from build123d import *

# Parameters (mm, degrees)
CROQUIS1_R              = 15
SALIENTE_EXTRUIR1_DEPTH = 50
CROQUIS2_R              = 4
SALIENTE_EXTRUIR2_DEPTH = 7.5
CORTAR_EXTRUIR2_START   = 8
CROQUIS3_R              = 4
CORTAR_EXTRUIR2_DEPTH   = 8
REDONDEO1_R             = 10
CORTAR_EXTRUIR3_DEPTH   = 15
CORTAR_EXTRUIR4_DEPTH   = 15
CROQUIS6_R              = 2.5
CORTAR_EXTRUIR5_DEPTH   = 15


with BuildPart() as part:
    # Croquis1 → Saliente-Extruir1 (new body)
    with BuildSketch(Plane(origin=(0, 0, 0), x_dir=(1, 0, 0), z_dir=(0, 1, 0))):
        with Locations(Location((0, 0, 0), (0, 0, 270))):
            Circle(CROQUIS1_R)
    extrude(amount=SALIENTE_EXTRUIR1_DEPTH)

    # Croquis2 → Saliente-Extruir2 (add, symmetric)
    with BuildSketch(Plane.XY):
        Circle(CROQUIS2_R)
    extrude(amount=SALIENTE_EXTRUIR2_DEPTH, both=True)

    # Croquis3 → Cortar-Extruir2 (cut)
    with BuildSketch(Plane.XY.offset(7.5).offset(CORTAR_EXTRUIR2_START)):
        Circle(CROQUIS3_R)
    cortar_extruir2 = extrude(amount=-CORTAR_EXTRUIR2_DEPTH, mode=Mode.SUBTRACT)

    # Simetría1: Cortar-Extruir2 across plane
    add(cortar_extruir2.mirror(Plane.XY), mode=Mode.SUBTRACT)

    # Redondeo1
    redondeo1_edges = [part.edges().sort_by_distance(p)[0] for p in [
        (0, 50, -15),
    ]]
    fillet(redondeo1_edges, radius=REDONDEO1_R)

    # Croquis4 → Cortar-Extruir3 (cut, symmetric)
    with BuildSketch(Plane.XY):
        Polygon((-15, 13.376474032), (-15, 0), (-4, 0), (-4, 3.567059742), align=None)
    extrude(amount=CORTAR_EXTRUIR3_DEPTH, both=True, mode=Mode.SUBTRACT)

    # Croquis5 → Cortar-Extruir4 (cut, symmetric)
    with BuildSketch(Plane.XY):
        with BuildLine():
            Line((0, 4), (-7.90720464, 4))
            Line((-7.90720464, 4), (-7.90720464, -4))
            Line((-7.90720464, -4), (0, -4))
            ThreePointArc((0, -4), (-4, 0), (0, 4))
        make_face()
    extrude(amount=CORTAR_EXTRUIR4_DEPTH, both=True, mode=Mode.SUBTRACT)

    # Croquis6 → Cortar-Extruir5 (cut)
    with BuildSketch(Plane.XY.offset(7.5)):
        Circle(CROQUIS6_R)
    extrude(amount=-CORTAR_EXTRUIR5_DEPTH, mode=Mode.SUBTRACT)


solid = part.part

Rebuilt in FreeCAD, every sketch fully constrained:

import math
import FreeCAD as App
import Part
import Sketcher
from FreeCAD import Vector


def edges_at(feature, points):
    """Names of the edges that pass closest to the given points."""
    edges = feature.Shape.Edges
    near = lambda p: min(range(len(edges)), key=lambda i: edges[i].distToShape(Part.Vertex(*p))[0])
    return sorted({f"Edge{near(p) + 1}" for p in points})

doc = App.newDocument("Part")
body = doc.addObject("PartDesign::Body", "Body")

sketch1 = body.newObject("Sketcher::SketchObject", "Sketch")
sketch1.AttachmentSupport = (doc.getObject("XZ_Plane"), [""])
sketch1.MapMode = "FlatFace"
sketch1.addGeometry(Part.Circle(Vector(0, 0, 0), Vector(0, 0, 1), 15), False)
sketch1.addConstraint([
    Sketcher.Constraint("Coincident", 0, 3, -1, 1),
    Sketcher.Constraint("Diameter", 0, 30.0),
])
pad1 = body.newObject("PartDesign::Pad", "Pad")
pad1.Profile = sketch1
pad1.Length = 50
pad1.Reversed = True

sketch2 = body.newObject("Sketcher::SketchObject", "Sketch001")
sketch2.AttachmentSupport = (doc.getObject("XY_Plane"), [""])
sketch2.MapMode = "FlatFace"
sketch2.addGeometry(Part.Circle(Vector(0, 0, 0), Vector(0, 0, 1), 4), False)
sketch2.addConstraint([
    Sketcher.Constraint("Coincident", 0, 3, -1, 1),
    Sketcher.Constraint("Diameter", 0, 8.0),
])
pad2 = body.newObject("PartDesign::Pad", "Pad001")
pad2.Profile = sketch2
pad2.Length = 15
pad2.Midplane = True

sketch3 = body.newObject("Sketcher::SketchObject", "Sketch002")
sketch3.AttachmentSupport = (doc.getObject("XY_Plane"), [""])
sketch3.MapMode = "FlatFace"
sketch3.AttachmentOffset = App.Placement(Vector(0, 0, 15.5), App.Rotation())
sketch3.addGeometry(Part.Circle(Vector(0, 0, 0), Vector(0, 0, 1), 4), False)
sketch3.addConstraint([
    Sketcher.Constraint("Coincident", 0, 3, -1, 1),
    Sketcher.Constraint("Diameter", 0, 8.0),
])
pocket1 = body.newObject("PartDesign::Pocket", "Pocket")
pocket1.Profile = sketch3
pocket1.Length = 8
doc.recompute()

mirrored = body.newObject("PartDesign::Mirrored", "Mirrored")
mirrored.Originals = [pocket1]
mirrored.MirrorPlane = (doc.getObject("XY_Plane"), [""])
body.Tip = mirrored
doc.recompute()

fillet = body.newObject("PartDesign::Fillet", "Fillet")
fillet.Base = (mirrored, edges_at(mirrored, [(0, 50, -15)]))
fillet.Radius = 10

sketch4 = body.newObject("Sketcher::SketchObject", "Sketch003")
sketch4.AttachmentSupport = (doc.getObject("XY_Plane"), [""])
sketch4.MapMode = "FlatFace"
sketch4.addGeometry([
    Part.LineSegment(Vector(-15, 13.4, 0), Vector(-15, 0, 0)),
    Part.LineSegment(Vector(-15, 0, 0), Vector(-4, 0, 0)),
    Part.LineSegment(Vector(-4, 0, 0), Vector(-4, 3.6, 0)),
    Part.LineSegment(Vector(-4, 3.6, 0), Vector(-15, 13.4, 0)),
], False)
sketch4.addConstraint([
    Sketcher.Constraint("Coincident", 0, 2, 1, 1),
    Sketcher.Constraint("Coincident", 1, 2, 2, 1),
    Sketcher.Constraint("Coincident", 2, 2, 3, 1),
    Sketcher.Constraint("Coincident", 3, 2, 0, 1),
    Sketcher.Constraint("Vertical", 0),
    Sketcher.Constraint("Horizontal", 1),
    Sketcher.Constraint("Vertical", 2),
    Sketcher.Constraint("PointOnObject", 0, 2, -1),
    Sketcher.Constraint("DistanceX", 1, 1, 1, 2, 11.0),
    Sketcher.Constraint("DistanceX", 0, 2, -1, 1, 15.0),
    Sketcher.Constraint("DistanceY", 2, 1, 2, 2, 3.56706),
    Sketcher.Constraint("Distance", 3, 14.738542),
])
pocket2 = body.newObject("PartDesign::Pocket", "Pocket001")
pocket2.Profile = sketch4
pocket2.Length = 30
pocket2.Midplane = True

sketch5 = body.newObject("Sketcher::SketchObject", "Sketch004")
sketch5.AttachmentSupport = (doc.getObject("XY_Plane"), [""])
sketch5.MapMode = "FlatFace"
sketch5.addGeometry([
    Part.LineSegment(Vector(0, 4, 0), Vector(-7.9, 4, 0)),
    Part.LineSegment(Vector(-7.9, 4, 0), Vector(-7.9, -4, 0)),
    Part.LineSegment(Vector(-7.9, -4, 0), Vector(0, -4, 0)),
    Part.ArcOfCircle(Part.Circle(Vector(0, 0, 0), Vector(0, 0, 1), 4), math.radians(90), math.radians(270)),
], False)
sketch5.addConstraint([
    Sketcher.Constraint("Coincident", 0, 2, 1, 1),
    Sketcher.Constraint("Coincident", 1, 2, 2, 1),
    Sketcher.Constraint("Tangent", 2, 2, 3, 2),
    Sketcher.Constraint("Tangent", 3, 1, 0, 1),
    Sketcher.Constraint("Horizontal", 0),
    Sketcher.Constraint("Vertical", 1),
    Sketcher.Constraint("Horizontal", 2),
    Sketcher.Constraint("Coincident", 3, 3, -1, 1),
    Sketcher.Constraint("Radius", 3, 4.0),
    Sketcher.Constraint("DistanceX", 0, 2, 0, 1, 7.907205),
])
pocket3 = body.newObject("PartDesign::Pocket", "Pocket002")
pocket3.Profile = sketch5
pocket3.Length = 30
pocket3.Midplane = True

sketch6 = body.newObject("Sketcher::SketchObject", "Sketch005")
sketch6.AttachmentSupport = (doc.getObject("XY_Plane"), [""])
sketch6.MapMode = "FlatFace"
sketch6.AttachmentOffset = App.Placement(Vector(0, 0, 7.5), App.Rotation())
sketch6.addGeometry(Part.Circle(Vector(0, 0, 0), Vector(0, 0, 1), 2.5), False)
sketch6.addConstraint([
    Sketcher.Constraint("Coincident", 0, 3, -1, 1),
    Sketcher.Constraint("Diameter", 0, 5.0),
])
pocket4 = body.newObject("PartDesign::Pocket", "Pocket003")
pocket4.Profile = sketch6
pocket4.Length = 15

doc.recompute()
